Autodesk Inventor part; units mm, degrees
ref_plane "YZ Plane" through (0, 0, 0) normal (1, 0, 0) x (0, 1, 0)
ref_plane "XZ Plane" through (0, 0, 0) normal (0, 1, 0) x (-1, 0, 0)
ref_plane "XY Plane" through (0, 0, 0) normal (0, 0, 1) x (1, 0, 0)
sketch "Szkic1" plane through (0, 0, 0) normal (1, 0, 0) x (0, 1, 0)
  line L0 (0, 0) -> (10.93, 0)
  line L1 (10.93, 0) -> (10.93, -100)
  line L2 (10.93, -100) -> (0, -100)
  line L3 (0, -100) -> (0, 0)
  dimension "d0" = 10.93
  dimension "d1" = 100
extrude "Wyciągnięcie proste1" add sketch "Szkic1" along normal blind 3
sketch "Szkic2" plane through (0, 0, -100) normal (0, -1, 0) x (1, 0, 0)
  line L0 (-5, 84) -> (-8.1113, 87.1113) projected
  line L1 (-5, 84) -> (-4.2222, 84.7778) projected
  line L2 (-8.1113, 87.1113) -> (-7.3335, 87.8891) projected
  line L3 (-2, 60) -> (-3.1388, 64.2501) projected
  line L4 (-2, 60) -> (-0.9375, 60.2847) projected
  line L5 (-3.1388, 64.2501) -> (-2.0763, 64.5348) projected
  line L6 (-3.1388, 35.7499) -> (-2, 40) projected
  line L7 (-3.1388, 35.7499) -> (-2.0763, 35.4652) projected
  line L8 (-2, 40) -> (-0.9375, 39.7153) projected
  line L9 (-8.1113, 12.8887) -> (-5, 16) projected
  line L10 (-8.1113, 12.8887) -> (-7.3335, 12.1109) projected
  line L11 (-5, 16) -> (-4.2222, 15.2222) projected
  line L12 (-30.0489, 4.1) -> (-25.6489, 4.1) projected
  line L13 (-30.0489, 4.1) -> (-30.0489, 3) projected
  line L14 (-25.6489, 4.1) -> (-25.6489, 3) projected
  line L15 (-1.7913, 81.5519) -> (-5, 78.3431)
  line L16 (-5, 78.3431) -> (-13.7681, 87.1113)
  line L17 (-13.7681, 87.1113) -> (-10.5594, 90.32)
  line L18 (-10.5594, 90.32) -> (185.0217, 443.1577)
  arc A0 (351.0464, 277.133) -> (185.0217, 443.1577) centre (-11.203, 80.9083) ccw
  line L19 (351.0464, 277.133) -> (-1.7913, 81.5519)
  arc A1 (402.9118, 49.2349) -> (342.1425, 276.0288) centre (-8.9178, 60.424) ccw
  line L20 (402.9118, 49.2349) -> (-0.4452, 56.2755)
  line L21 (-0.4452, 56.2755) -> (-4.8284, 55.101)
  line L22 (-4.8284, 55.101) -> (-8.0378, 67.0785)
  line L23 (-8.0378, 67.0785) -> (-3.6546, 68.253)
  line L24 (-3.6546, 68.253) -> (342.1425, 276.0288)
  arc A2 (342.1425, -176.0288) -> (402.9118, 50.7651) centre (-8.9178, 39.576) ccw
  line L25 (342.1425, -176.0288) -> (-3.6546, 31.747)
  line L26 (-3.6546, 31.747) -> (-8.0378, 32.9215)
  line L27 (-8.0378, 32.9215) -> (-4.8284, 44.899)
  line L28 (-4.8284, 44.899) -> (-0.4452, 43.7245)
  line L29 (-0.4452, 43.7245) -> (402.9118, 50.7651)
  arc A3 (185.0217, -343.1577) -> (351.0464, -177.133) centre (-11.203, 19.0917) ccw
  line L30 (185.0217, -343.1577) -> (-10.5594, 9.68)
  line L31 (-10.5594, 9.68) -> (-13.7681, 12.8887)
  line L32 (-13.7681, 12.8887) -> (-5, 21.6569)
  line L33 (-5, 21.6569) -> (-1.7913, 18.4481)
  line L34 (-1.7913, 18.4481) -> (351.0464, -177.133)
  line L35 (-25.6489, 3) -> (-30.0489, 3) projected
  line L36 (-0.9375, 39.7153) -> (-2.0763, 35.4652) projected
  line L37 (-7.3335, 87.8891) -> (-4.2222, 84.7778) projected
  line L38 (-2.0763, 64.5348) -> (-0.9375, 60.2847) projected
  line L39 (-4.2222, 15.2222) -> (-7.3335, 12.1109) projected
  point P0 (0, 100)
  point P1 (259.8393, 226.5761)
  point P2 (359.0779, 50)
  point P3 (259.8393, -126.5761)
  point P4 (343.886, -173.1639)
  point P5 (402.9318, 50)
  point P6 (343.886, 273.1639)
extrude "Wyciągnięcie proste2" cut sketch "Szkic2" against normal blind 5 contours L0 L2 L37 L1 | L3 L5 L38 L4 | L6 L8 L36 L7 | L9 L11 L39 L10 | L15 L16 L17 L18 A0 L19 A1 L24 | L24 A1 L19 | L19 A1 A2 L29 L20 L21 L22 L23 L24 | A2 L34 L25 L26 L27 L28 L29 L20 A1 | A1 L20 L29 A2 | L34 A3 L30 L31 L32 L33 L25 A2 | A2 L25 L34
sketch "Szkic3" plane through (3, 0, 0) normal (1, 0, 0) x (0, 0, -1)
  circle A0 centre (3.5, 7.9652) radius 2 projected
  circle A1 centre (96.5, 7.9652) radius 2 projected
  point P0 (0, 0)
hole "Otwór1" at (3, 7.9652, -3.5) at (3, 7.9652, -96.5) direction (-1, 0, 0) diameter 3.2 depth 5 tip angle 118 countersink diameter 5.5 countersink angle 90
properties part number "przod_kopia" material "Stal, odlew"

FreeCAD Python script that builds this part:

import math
import FreeCAD as App
import Part
import Sketcher
Q = App.Units.Quantity


def add_polygon(sketch, points):
    """Adds a closed chain of lines whose ends are joined by coincident constraints."""
    first, n = sketch.GeometryCount, len(points)
    for a, b in zip(points, points[1:] + points[:1]):
        sketch.addGeometry(Part.LineSegment(App.Vector(*a, 0), App.Vector(*b, 0)), False)
    for i in range(n):
        sketch.addConstraint(Sketcher.Constraint("Coincident", first + i, 2, first + (i + 1) % n, 1))

doc = App.newDocument("Part")
body = doc.addObject("PartDesign::Body", "Body")

sketch1 = doc.addObject("Sketcher::SketchObject", "Sketch")
body.addObject(sketch1)
sketch1.AttachmentSupport = (doc.YZ_Plane, [""])
sketch1.MapMode = "FlatFace"
add_polygon(sketch1, [(11, 0), (0, 0), (0, -100), (11, -100)])
sketch1.addConstraint(Sketcher.Constraint("Horizontal", 0))
sketch1.addConstraint(Sketcher.Constraint("Vertical", 1))
sketch1.addConstraint(Sketcher.Constraint("Horizontal", 2))
sketch1.addConstraint(Sketcher.Constraint("Vertical", 3))
sketch1.addConstraint(Sketcher.Constraint("Coincident", 0, 2, -1, 1))
sketch1.addConstraint(Sketcher.Constraint("DistanceY", 1, 2, 1, 1, 100.0))
sketch1.addConstraint(Sketcher.Constraint("DistanceX", 0, 2, 0, 1, 10.93))
pad1 = doc.addObject("PartDesign::Pad", "Pad")
body.addObject(pad1)
pad1.Profile = sketch1
pad1.Length = 3

sketch2 = doc.addObject("Sketcher::SketchObject", "Sketch001")
body.addObject(sketch2)
sketch2.AttachmentSupport = (doc.XZ_Plane, [""])
sketch2.MapMode = "FlatFace"
sketch2.addGeometry(Part.LineSegment(App.Vector(-5, -21.7, 0), App.Vector(-1.8, -18.4, 0)), False)
sketch2.addGeometry(Part.LineSegment(App.Vector(-1.8, -18.4, 0), App.Vector(259.8, 126.6, 0)), False)
sketch2.addGeometry(Part.LineSegment(App.Vector(259.8, 126.6, 0), App.Vector(-3.7, -31.7, 0)), False)
sketch2.addGeometry(Part.LineSegment(App.Vector(-3.7, -31.7, 0), App.Vector(-8, -32.9, 0)), False)
sketch2.addGeometry(Part.LineSegment(App.Vector(-8, -32.9, 0), App.Vector(-4.8, -44.9, 0)), False)
sketch2.addGeometry(Part.LineSegment(App.Vector(-4.8, -44.9, 0), App.Vector(-0.4, -43.7, 0)), False)
sketch2.addGeometry(Part.LineSegment(App.Vector(-0.4, -43.7, 0), App.Vector(359.1, -50, 0)), False)
sketch2.addGeometry(Part.LineSegment(App.Vector(359.1, -50, 0), App.Vector(-0.4, -56.3, 0)), False)
sketch2.addGeometry(Part.LineSegment(App.Vector(-0.4, -56.3, 0), App.Vector(-4.8, -55.1, 0)), False)
sketch2.addGeometry(Part.LineSegment(App.Vector(-4.8, -55.1, 0), App.Vector(-8, -67.1, 0)), False)
sketch2.addGeometry(Part.LineSegment(App.Vector(-8, -67.1, 0), App.Vector(-3.7, -68.3, 0)), False)
sketch2.addGeometry(Part.LineSegment(App.Vector(-3.7, -68.3, 0), App.Vector(259.8, -226.6, 0)), False)
sketch2.addGeometry(Part.LineSegment(App.Vector(259.8, -226.6, 0), App.Vector(-1.8, -81.6, 0)), False)
sketch2.addGeometry(Part.LineSegment(App.Vector(-1.8, -81.6, 0), App.Vector(-5, -78.3, 0)), False)
sketch2.addGeometry(Part.LineSegment(App.Vector(-5, -78.3, 0), App.Vector(-13.8, -87.1, 0)), False)
sketch2.addGeometry(Part.LineSegment(App.Vector(-13.8, -87.1, 0), App.Vector(-10.6, -90.3, 0)), False)
sketch2.addGeometry(Part.LineSegment(App.Vector(-10.6, -90.3, 0), App.Vector(185, -443.2, 0)), False)
sketch2.addGeometry(Part.ArcOfCircle(Part.Circle(App.Vector(-11.2, -80.9, 0), App.Vector(0, 0, 1), 412), math.radians(-62), math.radians(-28)), False)
sketch2.addGeometry(Part.LineSegment(App.Vector(351, -277.1, 0), App.Vector(343.9, -273.2, 0)), False)
sketch2.addGeometry(Part.ArcOfCircle(Part.Circle(App.Vector(-8.9, -60.4, 0), App.Vector(0, 0, 1), 412), math.radians(-31), math.radians(1)), False)
sketch2.addGeometry(Part.ArcOfCircle(Part.Circle(App.Vector(-8.9, -39.6, 0), App.Vector(0, 0, 1), 412), math.radians(-1), math.radians(31)), False)
sketch2.addGeometry(Part.LineSegment(App.Vector(343.9, 173.2, 0), App.Vector(351, 177.1, 0)), False)
sketch2.addGeometry(Part.ArcOfCircle(Part.Circle(App.Vector(-11.2, -19.1, 0), App.Vector(0, 0, 1), 412), math.radians(28), math.radians(62)), False)
sketch2.addGeometry(Part.LineSegment(App.Vector(185, 343.2, 0), App.Vector(-10.6, -9.7, 0)), False)
sketch2.addGeometry(Part.LineSegment(App.Vector(-10.6, -9.7, 0), App.Vector(-13.8, -12.9, 0)), False)
sketch2.addGeometry(Part.LineSegment(App.Vector(-13.8, -12.9, 0), App.Vector(-5, -21.7, 0)), False)
sketch2.addConstraint(Sketcher.Constraint("Coincident", 0, 2, 1, 1))
sketch2.addConstraint(Sketcher.Constraint("Coincident", 1, 2, 2, 1))
sketch2.addConstraint(Sketcher.Constraint("Coincident", 2, 2, 3, 1))
sketch2.addConstraint(Sketcher.Constraint("Coincident", 3, 2, 4, 1))
sketch2.addConstraint(Sketcher.Constraint("Coincident", 4, 2, 5, 1))
sketch2.addConstraint(Sketcher.Constraint("Coincident", 5, 2, 6, 1))
sketch2.addConstraint(Sketcher.Constraint("Coincident", 6, 2, 7, 1))
sketch2.addConstraint(Sketcher.Constraint("Coincident", 7, 2, 8, 1))
sketch2.addConstraint(Sketcher.Constraint("Coincident", 8, 2, 9, 1))
sketch2.addConstraint(Sketcher.Constraint("Coincident", 9, 2, 10, 1))
sketch2.addConstraint(Sketcher.Constraint("Coincident", 10, 2, 11, 1))
sketch2.addConstraint(Sketcher.Constraint("Coincident", 11, 2, 12, 1))
sketch2.addConstraint(Sketcher.Constraint("Coincident", 12, 2, 13, 1))
sketch2.addConstraint(Sketcher.Constraint("Coincident", 13, 2, 14, 1))
sketch2.addConstraint(Sketcher.Constraint("Coincident", 14, 2, 15, 1))
sketch2.addConstraint(Sketcher.Constraint("Coincident", 15, 2, 16, 1))
sketch2.addConstraint(Sketcher.Constraint("Coincident", 16, 2, 17, 1))
sketch2.addConstraint(Sketcher.Constraint("Coincident", 17, 2, 18, 1))
sketch2.addConstraint(Sketcher.Constraint("Coincident", 18, 2, 19, 1))
sketch2.addConstraint(Sketcher.Constraint("Coincident", 19, 2, 20, 1))
sketch2.addConstraint(Sketcher.Constraint("Coincident", 20, 2, 21, 1))
sketch2.addConstraint(Sketcher.Constraint("Coincident", 21, 2, 22, 1))
sketch2.addConstraint(Sketcher.Constraint("Coincident", 22, 2, 23, 1))
sketch2.addConstraint(Sketcher.Constraint("Coincident", 23, 2, 24, 1))
sketch2.addConstraint(Sketcher.Constraint("Coincident", 24, 2, 25, 1))
sketch2.addConstraint(Sketcher.Constraint("Coincident", 25, 2, 0, 1))
sketch2.addConstraint(Sketcher.Constraint("Equal", 17, 19))
sketch2.addConstraint(Sketcher.Constraint("Equal", 19, 20))
sketch2.addConstraint(Sketcher.Constraint("Equal", 20, 22))
sketch2.addConstraint(Sketcher.Constraint("Perpendicular", 3, 4))
sketch2.addConstraint(Sketcher.Constraint("Perpendicular", 4, 5))
sketch2.addConstraint(Sketcher.Constraint("Perpendicular", 8, 9))
sketch2.addConstraint(Sketcher.Constraint("Perpendicular", 9, 10))
sketch2.addConstraint(Sketcher.Constraint("Perpendicular", 0, 13))
sketch2.addConstraint(Sketcher.Constraint("Perpendicular", 13, 14))
sketch2.addConstraint(Sketcher.Constraint("Perpendicular", 14, 15))
sketch2.addConstraint(Sketcher.Constraint("Perpendicular", 1, 16))
sketch2.addConstraint(Sketcher.Constraint("Parallel", 12, 18))
sketch2.addConstraint(Sketcher.Constraint("Perpendicular", 16, 21))
sketch2.addConstraint(Sketcher.Constraint("Perpendicular", 18, 23))
sketch2.addConstraint(Sketcher.Constraint("Perpendicular", 15, 24))
sketch2.addConstraint(Sketcher.Constraint("Perpendicular", 24, 25))
sketch2.addConstraint(Sketcher.Constraint("Horizontal", 6, 2, 19, 2))
sketch2.addConstraint(Sketcher.Constraint("Vertical", 19, 3, 20, 3))
sketch2.addConstraint(Sketcher.Constraint("Vertical", 17, 3, 22, 3))
sketch2.addConstraint(Sketcher.Constraint("Vertical", 5, 2, 7, 2))
sketch2.addConstraint(Sketcher.Constraint("Vertical", 4, 2, 8, 2))
sketch2.addConstraint(Sketcher.Constraint("Vertical", 3, 2, 9, 2))
sketch2.addConstraint(Sketcher.Constraint("Vertical", 2, 2, 10, 2))
sketch2.addConstraint(Sketcher.Constraint("Vertical", 1, 2, 11, 2))
sketch2.addConstraint(Sketcher.Constraint("Vertical", 0, 2, 12, 2))
sketch2.addConstraint(Sketcher.Constraint("Vertical", 18, 2, 20, 2))
sketch2.addConstraint(Sketcher.Constraint("Vertical", 17, 2, 21, 2))
sketch2.addConstraint(Sketcher.Constraint("Vertical", 16, 2, 22, 2))
sketch2.addConstraint(Sketcher.Constraint("Vertical", 15, 2, 23, 2))
sketch2.addConstraint(Sketcher.Constraint("Vertical", 14, 2, 24, 2))
sketch2.addConstraint(Sketcher.Constraint("Vertical", 13, 2, 25, 2))
sketch2.addConstraint(Sketcher.Constraint("Equal", 0, 3))
sketch2.addConstraint(Sketcher.Constraint("Equal", 3, 5))
sketch2.addConstraint(Sketcher.Constraint("Equal", 6, 7))
sketch2.addConstraint(Sketcher.Constraint("Equal", 5, 8))
sketch2.addConstraint(Sketcher.Constraint("Equal", 2, 11))
sketch2.addConstraint(Sketcher.Constraint("Equal", 1, 12))
sketch2.addConstraint(Sketcher.Constraint("Equal", 9, 14))
sketch2.addConstraint(Sketcher.Constraint("Equal", 13, 15))
sketch2.addConstraint(Sketcher.Constraint("Angle", 1, Q("29 deg")))
sketch2.addConstraint(Sketcher.Constraint("Angle", 2, Q("-149 deg")))
sketch2.addConstraint(Sketcher.Constraint("Angle", 3, Q("-164.9997 deg")))
sketch2.addConstraint(Sketcher.Constraint("Angle", 6, Q("-1 deg")))
sketch2.addConstraint(Sketcher.Constraint("DistanceY", 6, 2, -1, 1, 50.0))
sketch2.addConstraint(Sketcher.Constraint("DistanceX", 13, 2, -1, 1, 5.0))
sketch2.addConstraint(Sketcher.Constraint("Distance", 4, 12.4))
sketch2.addConstraint(Sketcher.Constraint("Radius", 17, 411.9815))
sketch2.addConstraint(Sketcher.Constraint("DistanceY", 15, 2, -1, 1, 90.32))
sketch2.addConstraint(Sketcher.Constraint("DistanceX", 20, 3, 3, 2, 0.88))
sketch2.addConstraint(Sketcher.Constraint("DistanceY", 13, 2, 10, 2, 10.09))
sketch2.addConstraint(Sketcher.Constraint("Distance", 1, 299.137))
sketch2.addConstraint(Sketcher.Constraint("Distance", 6, 359.579))
sketch2.addConstraint(Sketcher.Constraint("Distance", 18, 8.187))
sketch2.addConstraint(Sketcher.Constraint("DistanceX", 17, 3, -1, 1, 11.203))
sketch2.addConstraint(Sketcher.Constraint("DistanceY", 19, 3, -1, 1, 60.424))
sketch2.addConstraint(Sketcher.Constraint("DistanceX", -1, 1, 18, 2, 343.886))
pocket1 = doc.addObject("PartDesign::Pocket", "Pocket")
body.addObject(pocket1)
pocket1.Profile = sketch2
pocket1.Length = 5

sketch3 = doc.addObject("Sketcher::SketchObject", "Sketch002")
body.addObject(sketch3)
sketch3.AttachmentSupport = (doc.YZ_Plane, [""])
sketch3.MapMode = "FlatFace"
sketch3.AttachmentOffset = App.Placement(App.Vector(0, 0, 3), App.Rotation())
sketch3.addGeometry(Part.Circle(App.Vector(8, -3.5, 0), App.Vector(0, 0, 1), 1.6), False)
sketch3.addGeometry(Part.Circle(App.Vector(8, -96.5, 0), App.Vector(0, 0, 1), 1.6), False)
sketch3.addConstraint(Sketcher.Constraint("Equal", 0, 1))
sketch3.addConstraint(Sketcher.Constraint("Vertical", 0, 3, 1, 3))
sketch3.addConstraint(Sketcher.Constraint("Diameter", 0, 3.2))
sketch3.addConstraint(Sketcher.Constraint("DistanceY", 1, 3, 0, 3, 93.0))
sketch3.addConstraint(Sketcher.Constraint("DistanceY", 0, 3, -1, 1, 3.5))
sketch3.addConstraint(Sketcher.Constraint("DistanceX", -1, 1, 0, 3, 7.9652))
doc.recompute()
hole = doc.addObject("PartDesign::Hole", "Hole")
body.addObject(hole)
hole.Profile = sketch3
hole.ThreadType = "None"
hole.Diameter = 3.2
hole.DepthType = "Dimension"
hole.Depth = 5
hole.DrillPoint = "Angled"
hole.DrillPointAngle = 118
hole.HoleCutType = "Countersink"
hole.HoleCutDiameter = 5.5
hole.HoleCutCountersinkAngle = 90

doc.recompute()
